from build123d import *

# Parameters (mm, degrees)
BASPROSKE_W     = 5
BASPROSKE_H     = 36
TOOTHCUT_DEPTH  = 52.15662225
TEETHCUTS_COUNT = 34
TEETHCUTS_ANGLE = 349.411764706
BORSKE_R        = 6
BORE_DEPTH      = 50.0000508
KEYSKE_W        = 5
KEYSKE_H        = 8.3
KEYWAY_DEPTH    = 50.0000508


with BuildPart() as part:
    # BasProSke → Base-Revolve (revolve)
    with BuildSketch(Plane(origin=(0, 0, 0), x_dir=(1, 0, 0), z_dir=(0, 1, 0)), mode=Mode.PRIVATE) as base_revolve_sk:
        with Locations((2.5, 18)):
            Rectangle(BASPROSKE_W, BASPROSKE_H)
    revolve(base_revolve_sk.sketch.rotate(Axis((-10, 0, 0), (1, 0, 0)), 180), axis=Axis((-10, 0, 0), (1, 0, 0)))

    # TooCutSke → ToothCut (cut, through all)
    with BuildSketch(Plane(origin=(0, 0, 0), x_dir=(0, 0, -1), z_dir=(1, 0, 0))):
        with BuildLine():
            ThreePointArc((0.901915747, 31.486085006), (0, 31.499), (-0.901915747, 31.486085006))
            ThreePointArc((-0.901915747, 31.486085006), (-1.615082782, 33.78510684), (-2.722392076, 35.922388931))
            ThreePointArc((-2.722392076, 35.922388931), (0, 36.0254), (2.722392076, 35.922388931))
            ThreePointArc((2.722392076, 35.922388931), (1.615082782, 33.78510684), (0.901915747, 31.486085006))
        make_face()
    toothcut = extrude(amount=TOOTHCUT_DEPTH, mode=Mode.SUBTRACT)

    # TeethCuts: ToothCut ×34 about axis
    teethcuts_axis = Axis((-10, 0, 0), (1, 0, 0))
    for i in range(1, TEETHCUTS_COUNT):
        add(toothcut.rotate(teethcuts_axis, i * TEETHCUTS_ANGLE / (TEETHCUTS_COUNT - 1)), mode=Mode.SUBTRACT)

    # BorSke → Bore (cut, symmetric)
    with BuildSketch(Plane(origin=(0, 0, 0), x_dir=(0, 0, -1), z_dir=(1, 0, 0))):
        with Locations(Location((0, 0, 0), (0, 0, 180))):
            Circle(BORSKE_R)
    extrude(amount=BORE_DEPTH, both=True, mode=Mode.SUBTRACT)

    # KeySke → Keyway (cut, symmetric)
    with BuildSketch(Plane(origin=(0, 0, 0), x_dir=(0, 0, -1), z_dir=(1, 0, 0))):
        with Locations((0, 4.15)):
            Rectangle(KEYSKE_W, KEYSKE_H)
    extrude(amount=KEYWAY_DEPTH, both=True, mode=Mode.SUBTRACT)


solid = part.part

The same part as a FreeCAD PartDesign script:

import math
import FreeCAD as App
import Part
import Sketcher

V = App.Vector

doc = App.newDocument("Part")
body = doc.addObject("PartDesign::Body", "Body")

# Sketch on XZ plane
sketch1 = doc.addObject("Sketcher::SketchObject", "Sketch")
body.addObject(sketch1)
sketch1.AttachmentSupport = (doc.XZ_Plane, [""])
sketch1.MapMode = "FlatFace"
sketch1.addGeometry(Part.LineSegment(V(0, -36, 0), V(0, 0, 0)), False)
sketch1.addGeometry(Part.LineSegment(V(0, 0, 0), V(5, 0, 0)), False)
sketch1.addGeometry(Part.LineSegment(V(5, 0, 0), V(5, -36, 0)), False)
sketch1.addGeometry(Part.LineSegment(V(5, -36, 0), V(0, -36, 0)), False)
sketch1.addConstraint(Sketcher.Constraint("Coincident", 0, 2, 1, 1))
sketch1.addConstraint(Sketcher.Constraint("Coincident", 1, 2, 2, 1))
sketch1.addConstraint(Sketcher.Constraint("Coincident", 2, 2, 3, 1))
sketch1.addConstraint(Sketcher.Constraint("Coincident", 3, 2, 0, 1))
sketch1.addConstraint(Sketcher.Constraint("Vertical", 0))
sketch1.addConstraint(Sketcher.Constraint("Horizontal", 1))
sketch1.addConstraint(Sketcher.Constraint("Vertical", 2))
sketch1.addConstraint(Sketcher.Constraint("Horizontal", 3))
sketch1.addConstraint(Sketcher.Constraint("Coincident", 0, 2, -1, 1))
sketch1.addConstraint(Sketcher.Constraint("DistanceX", 1, 1, 1, 2, 5.0))
sketch1.addConstraint(Sketcher.Constraint("DistanceY", 0, 1, 0, 2, 36.0))
revolution = doc.addObject("PartDesign::Revolution", "Revolution")
body.addObject(revolution)
revolution.Profile = sketch1
revolution.ReferenceAxis = (sketch1, ["H_Axis"])
revolution.Angle = 360

# Sketch on YZ plane
sketch2 = doc.addObject("Sketcher::SketchObject", "Sketch001")
body.addObject(sketch2)
sketch2.AttachmentSupport = (doc.YZ_Plane, [""])
sketch2.MapMode = "FlatFace"
sketch2.addGeometry(Part.ArcOfCircle(Part.Circle(V(-0.000001, 0, 0), V(0, 0, 1), 31.499001), math.radians(-1.640783), math.radians(1.640783)), False)
sketch2.addGeometry(Part.ArcOfCircle(Part.Circle(V(28.622038, -14.196924, 0), V(0, 0, 1), 13.6), math.radians(57.534578), math.radians(77.84297)), False)
sketch2.addGeometry(Part.ArcOfCircle(Part.Circle(V(0, 0, 0), V(0, 0, 1), 36.0254), math.radians(-4.333898), math.radians(4.333898)), False)
sketch2.addGeometry(Part.ArcOfCircle(Part.Circle(V(28.622038, 14.196924, 0), V(0, 0, 1), 13.6), math.radians(-77.84297), math.radians(-57.534578)), False)
sketch2.addConstraint(Sketcher.Constraint("Coincident", 0, 1, 1, 2))
sketch2.addConstraint(Sketcher.Constraint("Coincident", 1, 1, 2, 1))
sketch2.addConstraint(Sketcher.Constraint("Coincident", 2, 2, 3, 2))
sketch2.addConstraint(Sketcher.Constraint("Coincident", 3, 1, 0, 2))
sketch2.addConstraint(Sketcher.Constraint("Coincident", 0, 3, -1, 1))
sketch2.addConstraint(Sketcher.Constraint("Coincident", 2, 3, -1, 1))
sketch2.addConstraint(Sketcher.Constraint("Equal", 1, 3))
sketch2.addConstraint(Sketcher.Constraint("Symmetric", 1, 3, 3, 3, -1))
sketch2.addConstraint(Sketcher.Constraint("Radius", 1, 13.6))
sketch2.addConstraint(Sketcher.Constraint("Radius", 0, 31.499001))
sketch2.addConstraint(Sketcher.Constraint("Radius", 2, 36.0254))
sketch2.addConstraint(Sketcher.Constraint("DistanceX", -1, 1, 1, 1, 35.922389))
sketch2.addConstraint(Sketcher.Constraint("DistanceX", 0, 3, 1, 3, 28.622039))
pocket1 = doc.addObject("PartDesign::Pocket", "Pocket")
body.addObject(pocket1)
pocket1.Profile = sketch2
pocket1.Type = "ThroughAll"
pocket1.Reversed = True
doc.recompute()

polarpattern = doc.addObject("PartDesign::PolarPattern", "PolarPattern")
body.addObject(polarpattern)
polarpattern.Originals = [pocket1]
polarpattern.Axis = (doc.X_Axis, [""])
polarpattern.Angle = 360
polarpattern.Occurrences = 34
body.Tip = polarpattern

# Sketch on YZ plane
sketch3 = doc.addObject("Sketcher::SketchObject", "Sketch002")
body.addObject(sketch3)
sketch3.AttachmentSupport = (doc.YZ_Plane, [""])
sketch3.MapMode = "FlatFace"
sketch3.addGeometry(Part.Circle(V(0, 0, 0), V(0, 0, 1), 6), False)
sketch3.addConstraint(Sketcher.Constraint("Coincident", 0, 3, -1, 1))
sketch3.addConstraint(Sketcher.Constraint("Diameter", 0, 12.0))
pocket2 = doc.addObject("PartDesign::Pocket", "Pocket001")
body.addObject(pocket2)
pocket2.Profile = sketch3
pocket2.Length = 100.000102
pocket2.Midplane = True

# Sketch on YZ plane
sketch4 = doc.addObject("Sketcher::SketchObject", "Sketch003")
body.addObject(sketch4)
sketch4.AttachmentSupport = (doc.YZ_Plane, [""])
sketch4.MapMode = "FlatFace"
sketch4.addGeometry(Part.LineSegment(V(8.3, 2.5, 0), V(0, 2.5, 0)), False)
sketch4.addGeometry(Part.LineSegment(V(0, 2.5, 0), V(0, -2.5, 0)), False)
sketch4.addGeometry(Part.LineSegment(V(0, -2.5, 0), V(8.3, -2.5, 0)), False)
sketch4.addGeometry(Part.LineSegment(V(8.3, -2.5, 0), V(8.3, 2.5, 0)), False)
sketch4.addConstraint(Sketcher.Constraint("Coincident", 0, 2, 1, 1))
sketch4.addConstraint(Sketcher.Constraint("Coincident", 1, 2, 2, 1))
sketch4.addConstraint(Sketcher.Constraint("Coincident", 2, 2, 3, 1))
sketch4.addConstraint(Sketcher.Constraint("Coincident", 3, 2, 0, 1))
sketch4.addConstraint(Sketcher.Constraint("Horizontal", 0))
sketch4.addConstraint(Sketcher.Constraint("Vertical", 1))
sketch4.addConstraint(Sketcher.Constraint("Horizontal", 2))
sketch4.addConstraint(Sketcher.Constraint("Vertical", 3))
sketch4.addConstraint(Sketcher.Constraint("Symmetric", 0, 2, 1, 2, -1, 1))
sketch4.addConstraint(Sketcher.Constraint("DistanceY", 1, 2, 1, 1, 5.0))
sketch4.addConstraint(Sketcher.Constraint("DistanceX", 0, 2, 0, 1, 8.3))
pocket3 = doc.addObject("PartDesign::Pocket", "Pocket002")
body.addObject(pocket3)
pocket3.Profile = sketch4
pocket3.Length = 100.000102
pocket3.Midplane = True

doc.recompute()
